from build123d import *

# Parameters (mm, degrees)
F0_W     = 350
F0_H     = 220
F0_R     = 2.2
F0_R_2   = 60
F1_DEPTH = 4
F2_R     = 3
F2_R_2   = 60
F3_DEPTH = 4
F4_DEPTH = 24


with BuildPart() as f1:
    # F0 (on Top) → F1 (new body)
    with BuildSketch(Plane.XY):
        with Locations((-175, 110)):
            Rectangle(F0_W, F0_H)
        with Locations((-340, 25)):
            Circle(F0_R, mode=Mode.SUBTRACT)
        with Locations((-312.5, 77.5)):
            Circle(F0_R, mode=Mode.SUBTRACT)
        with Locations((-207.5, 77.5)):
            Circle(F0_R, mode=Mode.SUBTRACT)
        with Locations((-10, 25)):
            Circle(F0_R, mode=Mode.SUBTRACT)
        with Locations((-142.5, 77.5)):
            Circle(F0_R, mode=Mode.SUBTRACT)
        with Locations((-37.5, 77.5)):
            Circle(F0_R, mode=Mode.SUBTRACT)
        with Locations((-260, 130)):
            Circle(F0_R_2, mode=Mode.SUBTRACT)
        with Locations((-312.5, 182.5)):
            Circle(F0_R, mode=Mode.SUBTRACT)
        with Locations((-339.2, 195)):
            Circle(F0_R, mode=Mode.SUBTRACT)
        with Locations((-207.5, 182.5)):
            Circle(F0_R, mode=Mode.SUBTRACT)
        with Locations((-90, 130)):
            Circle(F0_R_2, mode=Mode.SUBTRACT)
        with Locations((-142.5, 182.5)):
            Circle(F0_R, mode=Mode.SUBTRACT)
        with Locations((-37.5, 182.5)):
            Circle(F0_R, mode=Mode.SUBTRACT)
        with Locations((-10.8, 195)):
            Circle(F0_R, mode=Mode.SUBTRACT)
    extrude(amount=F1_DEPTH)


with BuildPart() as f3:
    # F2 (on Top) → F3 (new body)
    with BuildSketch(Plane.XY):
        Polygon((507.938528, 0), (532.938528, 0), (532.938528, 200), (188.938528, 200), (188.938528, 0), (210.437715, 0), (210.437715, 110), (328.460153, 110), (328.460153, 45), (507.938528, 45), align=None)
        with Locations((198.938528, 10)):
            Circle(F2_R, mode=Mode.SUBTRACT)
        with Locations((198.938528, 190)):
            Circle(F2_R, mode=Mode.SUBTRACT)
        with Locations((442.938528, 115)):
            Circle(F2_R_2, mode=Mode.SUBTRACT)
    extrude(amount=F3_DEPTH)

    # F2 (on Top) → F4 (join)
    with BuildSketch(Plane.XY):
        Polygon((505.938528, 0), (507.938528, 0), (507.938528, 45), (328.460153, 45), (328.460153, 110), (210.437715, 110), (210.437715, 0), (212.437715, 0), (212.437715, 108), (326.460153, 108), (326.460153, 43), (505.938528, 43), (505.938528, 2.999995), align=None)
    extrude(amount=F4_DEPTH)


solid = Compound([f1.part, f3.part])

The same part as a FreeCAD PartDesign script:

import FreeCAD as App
import Part
import Sketcher
from FreeCAD import Vector
Q = App.Units.Quantity


def add_polygon(sketch, points):
    """Adds a closed chain of lines whose ends are joined by coincident constraints."""
    first, n = sketch.GeometryCount, len(points)
    for a, b in zip(points, points[1:] + points[:1]):
        sketch.addGeometry(Part.LineSegment(App.Vector(*a, 0), App.Vector(*b, 0)), False)
    for i in range(n):
        sketch.addConstraint(Sketcher.Constraint("Coincident", first + i, 2, first + (i + 1) % n, 1))

doc = App.newDocument("Part")
params = doc.addObject("Spreadsheet::Sheet", "Params")
for row, (alias, value) in enumerate([
    ("sketch1_diameter", "120 mm"),
    ("sketch1_diameter2", "4.4 mm"),
    ("sketch1_width", "350 mm"),
    ("sketch1_height", "220 mm"),
    ("pad1_length", "4 mm"),
    ("sketch2_diameter", "6 mm"),
    ("sketch2_diameter2", "120 mm"),
    ("sketch2_width", "25 mm"),
    ("sketch2_width2", "344 mm"),
    ("sketch2_height", "200 mm"),
    ("pad2_length", "4 mm"),
    ("sketch3_width", "2 mm"),
    ("sketch3_height", "45 mm"),
    ("sketch3_height2", "65 mm"),
    ("sketch3_height3", "108 mm"),
    ("pad3_length", "24 mm"),
], start=1):
    params.set(f"A{row}", alias)
    params.set(f"B{row}", "=" + value)
    params.setAlias(f"B{row}", alias)

body = doc.addObject("PartDesign::Body", "Body")

sketch1 = doc.addObject("Sketcher::SketchObject", "Sketch")
body.addObject(sketch1)
sketch1.AttachmentSupport = (doc.XY_Plane, [""])
sketch1.MapMode = "FlatFace"
add_polygon(sketch1, [(-350, 220), (-350, 0), (0, 0), (0, 220)])
sketch1.addGeometry(Part.Circle(Vector(-340, 25, 0), Vector(0, 0, 1), 2.2), False)
sketch1.addGeometry(Part.Circle(Vector(-312.5, 77.5, 0), Vector(0, 0, 1), 2.2), False)
sketch1.addGeometry(Part.Circle(Vector(-207.5, 77.5, 0), Vector(0, 0, 1), 2.2), False)
sketch1.addGeometry(Part.Circle(Vector(-10, 25, 0), Vector(0, 0, 1), 2.2), False)
sketch1.addGeometry(Part.Circle(Vector(-142.5, 77.5, 0), Vector(0, 0, 1), 2.2), False)
sketch1.addGeometry(Part.Circle(Vector(-37.5, 77.5, 0), Vector(0, 0, 1), 2.2), False)
sketch1.addGeometry(Part.Circle(Vector(-260, 130, 0), Vector(0, 0, 1), 60), False)
sketch1.addGeometry(Part.Circle(Vector(-312.5, 182.5, 0), Vector(0, 0, 1), 2.2), False)
sketch1.addGeometry(Part.Circle(Vector(-339.2, 195, 0), Vector(0, 0, 1), 2.2), False)
sketch1.addGeometry(Part.Circle(Vector(-207.5, 182.5, 0), Vector(0, 0, 1), 2.2), False)
sketch1.addGeometry(Part.Circle(Vector(-90, 130, 0), Vector(0, 0, 1), 60), False)
sketch1.addGeometry(Part.Circle(Vector(-142.5, 182.5, 0), Vector(0, 0, 1), 2.2), False)
sketch1.addGeometry(Part.Circle(Vector(-37.5, 182.5, 0), Vector(0, 0, 1), 2.2), False)
sketch1.addGeometry(Part.Circle(Vector(-10.8, 195, 0), Vector(0, 0, 1), 2.2), False)
sketch1.addConstraint([
    Sketcher.Constraint("Vertical", 0),
    Sketcher.Constraint("Horizontal", 1),
    Sketcher.Constraint("Vertical", 2),
    Sketcher.Constraint("Horizontal", 3),
    Sketcher.Constraint("Coincident", 1, 2, -1, 1),
    Sketcher.Constraint("Equal", 4, 5),
    Sketcher.Constraint("Equal", 5, 6),
    Sketcher.Constraint("Equal", 6, 7),
    Sketcher.Constraint("Equal", 7, 8),
    Sketcher.Constraint("Equal", 8, 9),
    Sketcher.Constraint("Equal", 9, 11),
    Sketcher.Constraint("Equal", 11, 12),
    Sketcher.Constraint("Equal", 12, 13),
    Sketcher.Constraint("Equal", 10, 14),
    Sketcher.Constraint("Equal", 13, 15),
    Sketcher.Constraint("Equal", 15, 16),
    Sketcher.Constraint("Equal", 16, 17),
    Sketcher.Constraint("Horizontal", 5, 3, 6, 3),
    Sketcher.Constraint("Horizontal", 4, 3, 7, 3),
    Sketcher.Constraint("Horizontal", 6, 3, 8, 3),
    Sketcher.Constraint("Horizontal", 8, 3, 9, 3),
    Sketcher.Constraint("Horizontal", 11, 3, 13, 3),
    Sketcher.Constraint("Horizontal", 10, 3, 14, 3),
    Sketcher.Constraint("Horizontal", 13, 3, 15, 3),
    Sketcher.Constraint("Horizontal", 15, 3, 16, 3),
    Sketcher.Constraint("Horizontal", 12, 3, 17, 3),
    Sketcher.Constraint("Vertical", 5, 3, 11, 3),
    Sketcher.Constraint("Vertical", 6, 3, 13, 3),
    Sketcher.Constraint("Vertical", 8, 3, 15, 3),
    Sketcher.Constraint("Vertical", 9, 3, 16, 3),
    Sketcher.Constraint("Diameter", 10, Q("120 mm")),
    Sketcher.Constraint("Diameter", 4, Q("4.4 mm")),
    Sketcher.Constraint("DistanceX", 1, 1, 1, 2, Q("350 mm")),
    Sketcher.Constraint("DistanceY", 0, 2, 0, 1, Q("220 mm")),
    Sketcher.Constraint("DistanceX", 4, 3, -1, 1, Q("340 mm")),
    Sketcher.Constraint("DistanceY", -1, 1, 4, 3, Q("25 mm")),
    Sketcher.Constraint("DistanceX", 7, 3, -1, 1, Q("10 mm")),
    Sketcher.Constraint("DistanceX", 10, 3, -1, 1, Q("260 mm")),
    Sketcher.Constraint("DistanceY", -1, 1, 10, 3, Q("130 mm")),
    Sketcher.Constraint("DistanceY", -1, 1, 12, 3, Q("195 mm")),
    Sketcher.Constraint("DistanceX", 14, 3, -1, 1, Q("90 mm")),
    Sketcher.Constraint("DistanceX", 5, 3, 6, 3, Q("105 mm")),
    Sketcher.Constraint("DistanceX", 6, 3, 8, 3, Q("65 mm")),
    Sketcher.Constraint("DistanceX", 8, 3, 9, 3, Q("105 mm")),
    Sketcher.Constraint("DistanceY", 5, 3, 11, 3, Q("105 mm")),
    Sketcher.Constraint("DistanceX", 5, 3, -1, 1, Q("312.5 mm")),
    Sketcher.Constraint("DistanceY", -1, 1, 5, 3, Q("77.5 mm")),
    Sketcher.Constraint("DistanceX", 12, 3, -1, 1, Q("339.2 mm")),
    Sketcher.Constraint("DistanceX", 17, 3, -1, 1, Q("10.8 mm")),
])
sketch1.setExpression("Constraints[34]", "Params.sketch1_diameter")
sketch1.setExpression("Constraints[35]", "Params.sketch1_diameter2")
sketch1.setExpression("Constraints[36]", "Params.sketch1_width")
sketch1.setExpression("Constraints[37]", "Params.sketch1_height")
pad1 = doc.addObject("PartDesign::Pad", "Pad")
body.addObject(pad1)
pad1.Profile = sketch1
pad1.setExpression("Length", "Params.pad1_length")
body2 = doc.addObject("PartDesign::Body", "Body001")

sketch2 = doc.addObject("Sketcher::SketchObject", "Sketch001")
body2.addObject(sketch2)
sketch2.AttachmentSupport = (doc.getObject("XY_Plane001"), [""])
sketch2.MapMode = "FlatFace"
add_polygon(sketch2, [(507.9, 0), (532.9, 0), (532.9, 200), (188.9, 200), (188.9, 0), (210.4, 0), (210.4, 110), (328.5, 110), (328.5, 45), (507.9, 45)])
sketch2.addGeometry(Part.Circle(Vector(198.9, 10, 0), Vector(0, 0, 1), 3), False)
sketch2.addGeometry(Part.Circle(Vector(198.9, 190, 0), Vector(0, 0, 1), 3), False)
sketch2.addGeometry(Part.Circle(Vector(442.9, 115, 0), Vector(0, 0, 1), 60), False)
sketch2.addConstraint([
    Sketcher.Constraint("Horizontal", 0),
    Sketcher.Constraint("Vertical", 1),
    Sketcher.Constraint("Horizontal", 2),
    Sketcher.Constraint("Vertical", 3),
    Sketcher.Constraint("Horizontal", 4),
    Sketcher.Constraint("Vertical", 5),
    Sketcher.Constraint("Horizontal", 6),
    Sketcher.Constraint("Vertical", 7),
    Sketcher.Constraint("Horizontal", 8),
    Sketcher.Constraint("Vertical", 9),
    Sketcher.Constraint("Equal", 10, 11),
    Sketcher.Constraint("PointOnObject", 0, 2, -1),
    Sketcher.Constraint("PointOnObject", 3, 2, -1),
    Sketcher.Constraint("Vertical", 10, 3, 11, 3),
    Sketcher.Constraint("Diameter", 10, Q("6 mm")),
    Sketcher.Constraint("Diameter", 12, Q("120 mm")),
    Sketcher.Constraint("DistanceX", 0, 1, 0, 2, Q("25 mm")),
    Sketcher.Constraint("DistanceX", 2, 2, 2, 1, Q("344 mm")),
    Sketcher.Constraint("DistanceY", 1, 1, 1, 2, Q("200 mm")),
    Sketcher.Constraint("DistanceY", 5, 1, 5, 2, Q("110 mm")),
    Sketcher.Constraint("DistanceY", 7, 2, 7, 1, Q("65 mm")),
    Sketcher.Constraint("DistanceY", -1, 1, 10, 3, Q("10 mm")),
    Sketcher.Constraint("DistanceY", -1, 1, 11, 3, Q("190 mm")),
    Sketcher.Constraint("DistanceY", -1, 1, 12, 3, Q("115 mm")),
    Sketcher.Constraint("DistanceX", 11, 3, 12, 3, Q("244 mm")),
    Sketcher.Constraint("DistanceX", 12, 3, 0, 2, Q("90 mm")),
    Sketcher.Constraint("DistanceX", 4, 1, 4, 2, Q("21.499187 mm")),
    Sketcher.Constraint("DistanceX", 6, 1, 6, 2, Q("118.022438 mm")),
    Sketcher.Constraint("DistanceX", -1, 1, 10, 3, Q("198.938528 mm")),
])
sketch2.setExpression("Constraints[24]", "Params.sketch2_diameter")
sketch2.setExpression("Constraints[25]", "Params.sketch2_diameter2")
sketch2.setExpression("Constraints[26]", "Params.sketch2_width")
sketch2.setExpression("Constraints[27]", "Params.sketch2_width2")
sketch2.setExpression("Constraints[28]", "Params.sketch2_height")
pad2 = doc.addObject("PartDesign::Pad", "Pad001")
body2.addObject(pad2)
pad2.Profile = sketch2
pad2.setExpression("Length", "Params.pad2_length")

sketch3 = doc.addObject("Sketcher::SketchObject", "Sketch002")
body2.addObject(sketch3)
sketch3.AttachmentSupport = (doc.getObject("XY_Plane001"), [""])
sketch3.MapMode = "FlatFace"
add_polygon(sketch3, [(505.9, 0), (507.9, 0), (507.9, 45), (328.5, 45), (328.5, 110), (210.4, 110), (210.4, 0), (212.4, 0), (212.4, 108), (326.5, 108), (326.5, 43), (505.9, 43)])
sketch3.addConstraint([
    Sketcher.Constraint("Horizontal", 0),
    Sketcher.Constraint("Vertical", 1),
    Sketcher.Constraint("Horizontal", 2),
    Sketcher.Constraint("Vertical", 3),
    Sketcher.Constraint("Horizontal", 4),
    Sketcher.Constraint("Vertical", 5),
    Sketcher.Constraint("Horizontal", 6),
    Sketcher.Constraint("Vertical", 7),
    Sketcher.Constraint("Horizontal", 8),
    Sketcher.Constraint("Vertical", 9),
    Sketcher.Constraint("Horizontal", 10),
    Sketcher.Constraint("Vertical", 11),
    Sketcher.Constraint("PointOnObject", 0, 2, -1),
    Sketcher.Constraint("PointOnObject", 5, 2, -1),
    Sketcher.Constraint("Equal", 0, 6),
    Sketcher.Constraint("Equal", 2, 10),
    Sketcher.Constraint("Equal", 3, 9),
    Sketcher.Constraint("DistanceX", 0, 1, 0, 2, Q("2 mm")),
    Sketcher.Constraint("DistanceY", 1, 1, 1, 2, Q("45 mm")),
    Sketcher.Constraint("DistanceY", 3, 1, 3, 2, Q("65 mm")),
    Sketcher.Constraint("DistanceY", 7, 1, 7, 2, Q("108 mm")),
    Sketcher.Constraint("DistanceX", 2, 2, 2, 1, Q("179.478375 mm")),
    Sketcher.Constraint("DistanceX", 4, 2, 4, 1, Q("118.022438 mm")),
    Sketcher.Constraint("DistanceX", -1, 1, 0, 2, Q("507.938528 mm")),
])
sketch3.setExpression("Constraints[29]", "Params.sketch3_width")
sketch3.setExpression("Constraints[30]", "Params.sketch3_height")
sketch3.setExpression("Constraints[31]", "Params.sketch3_height2")
sketch3.setExpression("Constraints[32]", "Params.sketch3_height3")
pad3 = doc.addObject("PartDesign::Pad", "Pad002")
body2.addObject(pad3)
pad3.Profile = sketch3
pad3.setExpression("Length", "Params.pad3_length")

doc.recompute()
